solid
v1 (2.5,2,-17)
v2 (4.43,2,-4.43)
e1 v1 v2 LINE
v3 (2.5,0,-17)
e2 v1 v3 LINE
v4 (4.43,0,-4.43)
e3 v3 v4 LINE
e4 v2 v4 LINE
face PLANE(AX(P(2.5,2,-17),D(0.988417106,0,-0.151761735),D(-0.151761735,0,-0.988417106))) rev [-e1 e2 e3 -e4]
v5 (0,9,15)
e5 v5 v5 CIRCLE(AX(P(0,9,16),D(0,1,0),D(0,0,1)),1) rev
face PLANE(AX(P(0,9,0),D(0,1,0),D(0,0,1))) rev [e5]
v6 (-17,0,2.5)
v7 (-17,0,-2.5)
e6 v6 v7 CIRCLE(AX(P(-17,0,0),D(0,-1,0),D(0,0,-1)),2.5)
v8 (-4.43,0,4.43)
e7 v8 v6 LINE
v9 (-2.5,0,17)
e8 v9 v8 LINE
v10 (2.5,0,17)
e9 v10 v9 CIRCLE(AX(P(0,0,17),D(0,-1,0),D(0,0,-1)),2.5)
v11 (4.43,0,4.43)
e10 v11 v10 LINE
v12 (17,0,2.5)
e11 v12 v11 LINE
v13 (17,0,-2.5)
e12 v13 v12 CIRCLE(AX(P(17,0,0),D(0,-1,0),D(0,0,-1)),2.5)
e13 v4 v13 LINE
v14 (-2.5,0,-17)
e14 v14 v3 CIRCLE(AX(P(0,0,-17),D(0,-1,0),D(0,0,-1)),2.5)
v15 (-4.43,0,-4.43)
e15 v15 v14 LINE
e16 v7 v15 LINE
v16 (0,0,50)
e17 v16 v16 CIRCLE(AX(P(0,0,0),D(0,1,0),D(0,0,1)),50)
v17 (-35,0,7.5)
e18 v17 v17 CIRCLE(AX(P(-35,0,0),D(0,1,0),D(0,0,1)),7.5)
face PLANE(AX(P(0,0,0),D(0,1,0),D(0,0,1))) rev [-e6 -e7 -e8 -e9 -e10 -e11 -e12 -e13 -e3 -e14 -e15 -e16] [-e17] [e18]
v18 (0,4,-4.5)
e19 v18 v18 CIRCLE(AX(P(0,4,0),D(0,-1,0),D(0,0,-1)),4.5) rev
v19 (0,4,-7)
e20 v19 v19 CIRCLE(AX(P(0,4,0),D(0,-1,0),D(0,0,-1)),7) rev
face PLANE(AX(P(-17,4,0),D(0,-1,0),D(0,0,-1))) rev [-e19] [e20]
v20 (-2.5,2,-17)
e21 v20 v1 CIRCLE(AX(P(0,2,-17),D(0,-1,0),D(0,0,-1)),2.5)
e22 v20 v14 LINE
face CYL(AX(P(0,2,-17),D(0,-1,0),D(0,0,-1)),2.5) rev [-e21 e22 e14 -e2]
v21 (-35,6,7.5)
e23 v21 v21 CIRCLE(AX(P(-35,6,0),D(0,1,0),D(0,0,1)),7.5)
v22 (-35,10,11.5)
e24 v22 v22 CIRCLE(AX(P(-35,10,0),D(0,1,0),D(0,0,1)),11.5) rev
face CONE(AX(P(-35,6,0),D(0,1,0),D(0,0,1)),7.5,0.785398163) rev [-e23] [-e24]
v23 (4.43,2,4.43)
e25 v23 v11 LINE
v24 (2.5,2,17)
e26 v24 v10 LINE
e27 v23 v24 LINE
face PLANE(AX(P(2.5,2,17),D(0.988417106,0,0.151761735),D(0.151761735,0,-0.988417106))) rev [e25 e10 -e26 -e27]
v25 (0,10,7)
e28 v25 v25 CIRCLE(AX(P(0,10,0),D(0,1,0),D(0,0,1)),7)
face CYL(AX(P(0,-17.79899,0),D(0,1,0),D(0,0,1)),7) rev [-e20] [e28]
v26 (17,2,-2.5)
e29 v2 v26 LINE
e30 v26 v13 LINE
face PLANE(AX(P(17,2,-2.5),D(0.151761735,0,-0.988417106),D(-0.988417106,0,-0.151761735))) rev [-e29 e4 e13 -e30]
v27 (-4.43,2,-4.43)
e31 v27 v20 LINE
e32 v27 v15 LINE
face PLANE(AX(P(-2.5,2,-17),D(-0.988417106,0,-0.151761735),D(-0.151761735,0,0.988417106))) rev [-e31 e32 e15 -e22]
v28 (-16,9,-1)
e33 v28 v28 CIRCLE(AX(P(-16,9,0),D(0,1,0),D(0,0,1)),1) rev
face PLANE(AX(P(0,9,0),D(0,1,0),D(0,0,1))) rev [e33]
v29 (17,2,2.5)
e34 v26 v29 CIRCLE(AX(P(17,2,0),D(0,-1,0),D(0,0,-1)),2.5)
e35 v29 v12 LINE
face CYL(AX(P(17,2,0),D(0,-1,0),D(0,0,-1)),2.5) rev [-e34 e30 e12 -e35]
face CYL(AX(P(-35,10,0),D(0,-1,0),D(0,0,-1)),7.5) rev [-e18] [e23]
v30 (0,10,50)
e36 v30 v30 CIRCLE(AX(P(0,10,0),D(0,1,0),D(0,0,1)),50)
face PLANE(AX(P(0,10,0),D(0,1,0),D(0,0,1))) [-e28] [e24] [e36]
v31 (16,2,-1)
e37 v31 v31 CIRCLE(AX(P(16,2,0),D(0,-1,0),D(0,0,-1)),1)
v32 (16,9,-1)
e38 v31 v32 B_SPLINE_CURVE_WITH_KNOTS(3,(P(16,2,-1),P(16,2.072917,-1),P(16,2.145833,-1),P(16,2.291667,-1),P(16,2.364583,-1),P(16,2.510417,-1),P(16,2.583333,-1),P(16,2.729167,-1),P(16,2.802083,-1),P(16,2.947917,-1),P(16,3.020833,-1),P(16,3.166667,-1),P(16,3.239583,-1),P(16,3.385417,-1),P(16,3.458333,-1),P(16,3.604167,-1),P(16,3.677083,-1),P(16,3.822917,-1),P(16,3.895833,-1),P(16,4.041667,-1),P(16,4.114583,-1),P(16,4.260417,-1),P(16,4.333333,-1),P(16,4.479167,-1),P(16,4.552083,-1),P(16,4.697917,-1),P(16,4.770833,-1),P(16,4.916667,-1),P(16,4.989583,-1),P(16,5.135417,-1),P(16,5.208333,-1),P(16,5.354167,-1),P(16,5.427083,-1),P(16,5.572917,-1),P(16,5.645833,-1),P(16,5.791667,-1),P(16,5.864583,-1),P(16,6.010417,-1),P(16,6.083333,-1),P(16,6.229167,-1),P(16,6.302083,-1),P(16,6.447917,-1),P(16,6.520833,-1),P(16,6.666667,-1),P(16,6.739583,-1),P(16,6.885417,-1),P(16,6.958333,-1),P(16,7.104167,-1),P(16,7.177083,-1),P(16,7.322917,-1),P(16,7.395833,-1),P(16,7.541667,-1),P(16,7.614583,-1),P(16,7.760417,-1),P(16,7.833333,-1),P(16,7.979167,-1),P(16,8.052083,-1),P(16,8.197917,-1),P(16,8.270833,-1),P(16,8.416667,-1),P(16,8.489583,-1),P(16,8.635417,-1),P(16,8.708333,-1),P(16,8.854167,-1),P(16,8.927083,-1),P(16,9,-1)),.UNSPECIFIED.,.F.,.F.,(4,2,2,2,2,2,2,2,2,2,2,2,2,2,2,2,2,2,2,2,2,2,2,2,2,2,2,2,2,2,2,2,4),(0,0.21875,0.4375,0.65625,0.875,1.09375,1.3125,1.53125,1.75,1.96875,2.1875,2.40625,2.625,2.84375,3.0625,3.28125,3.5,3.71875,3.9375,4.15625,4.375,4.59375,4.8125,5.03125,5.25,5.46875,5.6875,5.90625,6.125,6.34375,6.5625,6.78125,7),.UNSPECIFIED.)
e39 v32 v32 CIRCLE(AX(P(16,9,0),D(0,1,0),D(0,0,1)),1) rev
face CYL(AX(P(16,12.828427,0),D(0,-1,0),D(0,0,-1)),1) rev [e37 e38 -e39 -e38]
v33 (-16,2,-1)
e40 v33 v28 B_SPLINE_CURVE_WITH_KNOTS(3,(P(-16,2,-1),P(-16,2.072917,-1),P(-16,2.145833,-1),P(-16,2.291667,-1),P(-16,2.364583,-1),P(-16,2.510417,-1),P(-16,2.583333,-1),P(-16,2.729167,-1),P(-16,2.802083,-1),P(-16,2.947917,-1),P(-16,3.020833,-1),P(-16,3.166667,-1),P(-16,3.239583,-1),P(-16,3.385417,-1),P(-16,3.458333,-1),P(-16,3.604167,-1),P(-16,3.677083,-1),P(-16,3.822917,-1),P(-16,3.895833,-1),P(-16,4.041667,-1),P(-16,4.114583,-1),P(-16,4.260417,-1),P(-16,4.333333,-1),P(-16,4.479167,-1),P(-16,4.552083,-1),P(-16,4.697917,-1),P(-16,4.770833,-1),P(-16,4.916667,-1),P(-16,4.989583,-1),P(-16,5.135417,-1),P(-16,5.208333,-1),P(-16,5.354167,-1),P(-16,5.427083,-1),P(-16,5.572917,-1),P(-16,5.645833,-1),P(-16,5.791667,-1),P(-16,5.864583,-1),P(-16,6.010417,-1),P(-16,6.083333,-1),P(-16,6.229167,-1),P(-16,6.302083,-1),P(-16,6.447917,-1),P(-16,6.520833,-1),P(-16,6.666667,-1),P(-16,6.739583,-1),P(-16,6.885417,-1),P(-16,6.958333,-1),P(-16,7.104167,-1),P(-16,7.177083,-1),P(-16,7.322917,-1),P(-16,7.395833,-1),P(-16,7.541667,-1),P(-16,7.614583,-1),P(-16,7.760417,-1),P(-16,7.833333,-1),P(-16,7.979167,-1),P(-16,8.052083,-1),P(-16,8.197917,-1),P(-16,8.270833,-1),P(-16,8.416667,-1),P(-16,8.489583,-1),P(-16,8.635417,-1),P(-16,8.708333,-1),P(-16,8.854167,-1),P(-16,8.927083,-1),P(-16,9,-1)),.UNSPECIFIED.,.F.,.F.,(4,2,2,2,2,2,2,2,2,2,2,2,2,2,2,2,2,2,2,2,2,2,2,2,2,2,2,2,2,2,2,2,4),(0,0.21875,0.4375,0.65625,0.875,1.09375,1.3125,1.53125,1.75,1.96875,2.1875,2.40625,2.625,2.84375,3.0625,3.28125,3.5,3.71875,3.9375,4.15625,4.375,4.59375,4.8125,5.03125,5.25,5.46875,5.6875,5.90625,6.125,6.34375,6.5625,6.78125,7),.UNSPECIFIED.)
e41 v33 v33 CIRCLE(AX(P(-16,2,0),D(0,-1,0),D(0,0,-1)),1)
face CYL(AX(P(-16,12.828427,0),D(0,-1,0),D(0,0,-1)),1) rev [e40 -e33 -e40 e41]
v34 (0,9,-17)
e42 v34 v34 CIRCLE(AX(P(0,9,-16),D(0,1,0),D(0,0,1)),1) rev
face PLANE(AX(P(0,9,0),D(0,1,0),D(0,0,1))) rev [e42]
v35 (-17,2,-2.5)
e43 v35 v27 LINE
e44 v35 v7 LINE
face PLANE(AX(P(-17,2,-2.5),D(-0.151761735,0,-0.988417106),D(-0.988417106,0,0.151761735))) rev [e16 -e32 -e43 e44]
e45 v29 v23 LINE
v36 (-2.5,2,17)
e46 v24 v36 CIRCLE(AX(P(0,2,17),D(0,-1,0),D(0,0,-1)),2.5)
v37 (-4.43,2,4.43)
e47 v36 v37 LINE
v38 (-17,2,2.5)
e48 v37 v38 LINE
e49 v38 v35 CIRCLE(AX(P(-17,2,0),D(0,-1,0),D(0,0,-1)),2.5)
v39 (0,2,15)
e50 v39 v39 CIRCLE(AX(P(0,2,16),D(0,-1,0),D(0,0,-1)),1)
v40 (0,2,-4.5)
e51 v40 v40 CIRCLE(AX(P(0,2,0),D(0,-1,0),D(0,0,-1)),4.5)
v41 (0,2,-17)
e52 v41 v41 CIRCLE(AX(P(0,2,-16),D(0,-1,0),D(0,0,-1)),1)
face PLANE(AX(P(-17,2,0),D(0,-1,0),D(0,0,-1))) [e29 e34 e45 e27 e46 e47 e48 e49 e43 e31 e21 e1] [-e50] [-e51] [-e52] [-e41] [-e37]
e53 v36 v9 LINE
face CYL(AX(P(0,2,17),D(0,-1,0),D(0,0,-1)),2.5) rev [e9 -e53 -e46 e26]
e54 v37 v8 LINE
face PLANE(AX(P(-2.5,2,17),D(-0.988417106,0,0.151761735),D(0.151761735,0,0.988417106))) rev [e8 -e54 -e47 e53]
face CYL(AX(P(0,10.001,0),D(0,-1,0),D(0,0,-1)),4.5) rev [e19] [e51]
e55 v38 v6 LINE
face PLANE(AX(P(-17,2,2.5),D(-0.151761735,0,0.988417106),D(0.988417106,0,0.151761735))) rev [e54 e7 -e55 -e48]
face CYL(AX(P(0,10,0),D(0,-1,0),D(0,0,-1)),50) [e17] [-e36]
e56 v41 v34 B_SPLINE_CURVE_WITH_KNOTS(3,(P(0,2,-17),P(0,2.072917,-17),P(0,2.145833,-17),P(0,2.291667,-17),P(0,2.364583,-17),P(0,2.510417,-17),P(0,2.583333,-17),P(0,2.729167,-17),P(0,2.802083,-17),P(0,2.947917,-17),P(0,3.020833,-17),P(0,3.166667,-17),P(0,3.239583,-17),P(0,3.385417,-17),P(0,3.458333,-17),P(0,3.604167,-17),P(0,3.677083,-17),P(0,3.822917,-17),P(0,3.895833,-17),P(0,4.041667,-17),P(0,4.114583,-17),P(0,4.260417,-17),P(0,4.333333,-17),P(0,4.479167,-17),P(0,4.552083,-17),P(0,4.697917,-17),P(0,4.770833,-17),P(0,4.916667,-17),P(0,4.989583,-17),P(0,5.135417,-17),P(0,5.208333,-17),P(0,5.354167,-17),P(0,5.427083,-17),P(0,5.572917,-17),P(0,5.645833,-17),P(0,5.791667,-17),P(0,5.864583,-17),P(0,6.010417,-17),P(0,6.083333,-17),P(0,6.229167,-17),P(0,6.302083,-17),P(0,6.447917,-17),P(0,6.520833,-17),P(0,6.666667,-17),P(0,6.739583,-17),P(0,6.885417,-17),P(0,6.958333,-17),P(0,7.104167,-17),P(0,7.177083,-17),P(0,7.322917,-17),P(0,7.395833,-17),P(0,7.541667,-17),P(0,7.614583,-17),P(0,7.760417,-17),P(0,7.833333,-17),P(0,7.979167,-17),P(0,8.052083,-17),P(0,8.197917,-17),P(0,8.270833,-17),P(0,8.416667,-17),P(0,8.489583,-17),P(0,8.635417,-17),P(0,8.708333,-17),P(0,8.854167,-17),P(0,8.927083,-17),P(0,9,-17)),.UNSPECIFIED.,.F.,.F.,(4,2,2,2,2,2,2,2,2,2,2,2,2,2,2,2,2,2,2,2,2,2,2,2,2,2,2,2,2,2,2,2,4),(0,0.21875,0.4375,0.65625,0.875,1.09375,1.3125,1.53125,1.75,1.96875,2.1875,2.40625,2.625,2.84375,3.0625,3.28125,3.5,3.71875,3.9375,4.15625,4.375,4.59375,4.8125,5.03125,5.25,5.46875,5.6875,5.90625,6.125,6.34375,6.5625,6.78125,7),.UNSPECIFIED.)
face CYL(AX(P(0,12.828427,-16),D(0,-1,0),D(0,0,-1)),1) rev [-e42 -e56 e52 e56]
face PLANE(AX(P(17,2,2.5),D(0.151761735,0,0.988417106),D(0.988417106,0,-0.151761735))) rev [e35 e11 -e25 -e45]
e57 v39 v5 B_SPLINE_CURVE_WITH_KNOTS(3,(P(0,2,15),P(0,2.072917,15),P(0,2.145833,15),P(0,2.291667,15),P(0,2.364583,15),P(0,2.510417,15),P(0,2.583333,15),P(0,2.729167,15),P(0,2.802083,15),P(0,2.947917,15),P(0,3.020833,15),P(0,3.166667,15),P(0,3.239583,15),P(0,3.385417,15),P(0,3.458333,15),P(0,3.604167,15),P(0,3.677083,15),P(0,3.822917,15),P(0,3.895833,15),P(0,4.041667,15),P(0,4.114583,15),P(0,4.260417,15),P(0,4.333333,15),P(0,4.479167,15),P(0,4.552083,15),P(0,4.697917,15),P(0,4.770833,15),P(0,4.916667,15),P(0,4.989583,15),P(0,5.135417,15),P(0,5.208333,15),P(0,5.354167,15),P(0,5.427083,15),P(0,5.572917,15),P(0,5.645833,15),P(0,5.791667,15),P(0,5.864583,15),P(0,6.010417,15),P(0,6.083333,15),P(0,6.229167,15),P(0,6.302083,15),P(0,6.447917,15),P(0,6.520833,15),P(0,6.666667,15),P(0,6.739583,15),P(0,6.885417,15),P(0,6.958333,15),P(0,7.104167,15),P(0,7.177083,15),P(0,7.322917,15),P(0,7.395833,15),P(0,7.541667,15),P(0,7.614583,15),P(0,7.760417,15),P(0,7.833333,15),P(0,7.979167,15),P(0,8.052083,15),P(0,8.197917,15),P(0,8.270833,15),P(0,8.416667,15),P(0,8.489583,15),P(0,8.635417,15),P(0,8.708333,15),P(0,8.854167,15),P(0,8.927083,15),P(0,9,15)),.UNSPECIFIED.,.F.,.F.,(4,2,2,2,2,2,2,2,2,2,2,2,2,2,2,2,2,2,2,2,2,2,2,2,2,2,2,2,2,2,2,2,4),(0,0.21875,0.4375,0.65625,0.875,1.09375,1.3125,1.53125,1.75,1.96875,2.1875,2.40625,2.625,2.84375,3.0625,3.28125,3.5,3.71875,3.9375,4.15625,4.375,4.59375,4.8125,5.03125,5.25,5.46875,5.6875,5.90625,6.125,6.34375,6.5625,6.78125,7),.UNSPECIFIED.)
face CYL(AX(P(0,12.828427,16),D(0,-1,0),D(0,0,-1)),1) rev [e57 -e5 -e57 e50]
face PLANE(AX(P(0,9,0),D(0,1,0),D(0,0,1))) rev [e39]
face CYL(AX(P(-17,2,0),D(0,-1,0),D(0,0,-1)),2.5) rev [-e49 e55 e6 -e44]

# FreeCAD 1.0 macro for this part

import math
import FreeCAD as App
import Part
import Sketcher
Q = App.Units.Quantity


def edges_at(feature, points):
    """Names of the edges that pass closest to the given points."""
    edges = feature.Shape.Edges
    near = lambda p: min(range(len(edges)), key=lambda i: edges[i].distToShape(Part.Vertex(*p))[0])
    return sorted({f"Edge{near(p) + 1}" for p in points})

doc = App.newDocument("Part")
body = doc.addObject("PartDesign::Body", "Body")

# Sketch on XZ plane
sketch1 = body.newObject("Sketcher::SketchObject", "Sketch")
sketch1.AttachmentSupport = (doc.getObject("XZ_Plane"), [""])
sketch1.MapMode = "FlatFace"
sketch1.addGeometry(Part.Circle(App.Vector(0, 0, 0), App.Vector(0, 0, 1), 50), False)
sketch1.addGeometry(Part.Circle(App.Vector(-35, 0, 0), App.Vector(0, 0, 1), 8), False)
sketch1.addConstraint(Sketcher.Constraint("Coincident", 0, 3, -1, 1))
sketch1.addConstraint(Sketcher.Constraint("PointOnObject", 1, 3, -1))
sketch1.addConstraint(Sketcher.Constraint("Diameter", 0, Q("100 mm")))
sketch1.addConstraint(Sketcher.Constraint("Diameter", 1, Q("15 mm")))
sketch1.addConstraint(Sketcher.Constraint("DistanceX", 1, 3, -1, 1, Q("35 mm")))
pad1 = body.newObject("PartDesign::Pad", "Pad")
pad1.Profile = sketch1
pad1.Length = 10
pad1.Reversed = True
doc.recompute()

chamfer = body.newObject("PartDesign::Chamfer", "Chamfer")
chamfer.Base = (pad1, edges_at(pad1, [(-35, 10, -7.5)]))
chamfer.Size = 4

# Sketch on XZ plane
sketch2 = body.newObject("Sketcher::SketchObject", "Sketch001")
sketch2.AttachmentSupport = (doc.getObject("XZ_Plane"), [""])
sketch2.MapMode = "FlatFace"
sketch2.addGeometry(Part.LineSegment(App.Vector(-17, -2.5, 0), App.Vector(-4.4, -4.4, 0)), False)
sketch2.addGeometry(Part.LineSegment(App.Vector(-4.4, -4.4, 0), App.Vector(-2.5, -17, 0)), False)
sketch2.addGeometry(Part.ArcOfCircle(Part.Circle(App.Vector(0, -17, 0), App.Vector(0, 0, 1), 2.5), math.radians(180), math.radians(360)), False)
sketch2.addGeometry(Part.LineSegment(App.Vector(2.5, -17, 0), App.Vector(4.4, -4.4, 0)), False)
sketch2.addGeometry(Part.LineSegment(App.Vector(4.4, -4.4, 0), App.Vector(17, -2.5, 0)), False)
sketch2.addGeometry(Part.ArcOfCircle(Part.Circle(App.Vector(17, 0, 0), App.Vector(0, 0, 1), 2.5), math.radians(-90), math.radians(90)), False)
sketch2.addGeometry(Part.LineSegment(App.Vector(17, 2.5, 0), App.Vector(4.4, 4.4, 0)), False)
sketch2.addGeometry(Part.LineSegment(App.Vector(4.4, 4.4, 0), App.Vector(2.5, 17, 0)), False)
sketch2.addGeometry(Part.ArcOfCircle(Part.Circle(App.Vector(0, 17, 0), App.Vector(0, 0, 1), 2.5), math.radians(0), math.radians(180)), False)
sketch2.addGeometry(Part.LineSegment(App.Vector(-2.5, 17, 0), App.Vector(-4.4, 4.4, 0)), False)
sketch2.addGeometry(Part.LineSegment(App.Vector(-4.4, 4.4, 0), App.Vector(-17, 2.5, 0)), False)
sketch2.addGeometry(Part.ArcOfCircle(Part.Circle(App.Vector(-17, 0, 0), App.Vector(0, 0, 1), 2.5), math.radians(90), math.radians(270)), False)
sketch2.addConstraint(Sketcher.Constraint("Coincident", 0, 2, 1, 1))
sketch2.addConstraint(Sketcher.Constraint("Coincident", 1, 2, 2, 1))
sketch2.addConstraint(Sketcher.Constraint("Coincident", 2, 2, 3, 1))
sketch2.addConstraint(Sketcher.Constraint("Coincident", 3, 2, 4, 1))
sketch2.addConstraint(Sketcher.Constraint("Coincident", 4, 2, 5, 1))
sketch2.addConstraint(Sketcher.Constraint("Coincident", 5, 2, 6, 1))
sketch2.addConstraint(Sketcher.Constraint("Coincident", 6, 2, 7, 1))
sketch2.addConstraint(Sketcher.Constraint("Coincident", 7, 2, 8, 1))
sketch2.addConstraint(Sketcher.Constraint("Coincident", 8, 2, 9, 1))
sketch2.addConstraint(Sketcher.Constraint("Coincident", 9, 2, 10, 1))
sketch2.addConstraint(Sketcher.Constraint("Coincident", 10, 2, 11, 1))
sketch2.addConstraint(Sketcher.Constraint("Coincident", 11, 2, 0, 1))
sketch2.addConstraint(Sketcher.Constraint("Equal", 2, 5))
sketch2.addConstraint(Sketcher.Constraint("Equal", 5, 8))
sketch2.addConstraint(Sketcher.Constraint("Equal", 8, 11))
sketch2.addConstraint(Sketcher.Constraint("Symmetric", 2, 3, 8, 3, -1, 1))
sketch2.addConstraint(Sketcher.Constraint("Symmetric", 5, 3, 11, 3, -1, 1))
sketch2.addConstraint(Sketcher.Constraint("Symmetric", 0, 2, 6, 2, -1, 1))
sketch2.addConstraint(Sketcher.Constraint("Symmetric", 3, 2, 9, 2, -1, 1))
sketch2.addConstraint(Sketcher.Constraint("Symmetric", 1, 2, 2, 2, -2))
sketch2.addConstraint(Sketcher.Constraint("Symmetric", 0, 2, 3, 2, -2))
sketch2.addConstraint(Sketcher.Constraint("Symmetric", 5, 2, 10, 2, -2))
sketch2.addConstraint(Sketcher.Constraint("Perpendicular", 0, 3))
sketch2.addConstraint(Sketcher.Constraint("Perpendicular", 1, 4))
sketch2.addConstraint(Sketcher.Constraint("Perpendicular", 3, 6))
sketch2.addConstraint(Sketcher.Constraint("Perpendicular", 4, 7))
sketch2.addConstraint(Sketcher.Constraint("Perpendicular", 6, 9))
sketch2.addConstraint(Sketcher.Constraint("Horizontal", 2, 3, 1, 2))
sketch2.addConstraint(Sketcher.Constraint("Vertical", 5, 3, 4, 2))
sketch2.addConstraint(Sketcher.Constraint("Equal", 0, 1))
sketch2.addConstraint(Sketcher.Constraint("Radius", 2, Q("2.5 mm")))
sketch2.addConstraint(Sketcher.Constraint("DistanceY", 2, 3, -1, 1, Q("17 mm")))
sketch2.addConstraint(Sketcher.Constraint("DistanceX", 0, 2, -1, 1, Q("4.43 mm")))
pocket1 = body.newObject("PartDesign::Pocket", "Pocket")
pocket1.Profile = sketch2
pocket1.Length = 2

# Sketch on XZ plane
sketch3 = body.newObject("Sketcher::SketchObject", "Sketch002")
sketch3.AttachmentSupport = (doc.getObject("XZ_Plane"), [""])
sketch3.MapMode = "FlatFace"
sketch3.AttachmentOffset = App.Placement(App.Vector(0, 0, -2), App.Rotation())
sketch3.addGeometry(Part.Circle(App.Vector(0, 0, 0), App.Vector(0, 0, 1), 4.5), False)
sketch3.addConstraint(Sketcher.Constraint("Coincident", 0, 3, -1, 1))
sketch3.addConstraint(Sketcher.Constraint("Diameter", 0, Q("9 mm")))
pocket2 = body.newObject("PartDesign::Pocket", "Pocket001")
pocket2.Profile = sketch3
pocket2.Type = "UpToFirst"

# Sketch on XZ plane
sketch4 = body.newObject("Sketcher::SketchObject", "Sketch003")
sketch4.AttachmentSupport = (doc.getObject("XZ_Plane"), [""])
sketch4.MapMode = "FlatFace"
sketch4.AttachmentOffset = App.Placement(App.Vector(0, 0, -2), App.Rotation())
sketch4.addGeometry(Part.Circle(App.Vector(-16, 0, 0), App.Vector(0, 0, 1), 1), False)
sketch4.addGeometry(Part.Circle(App.Vector(0, 16, 0), App.Vector(0, 0, 1), 1), False)
sketch4.addGeometry(Part.Circle(App.Vector(16, 0, 0), App.Vector(0, 0, 1), 1), False)
sketch4.addGeometry(Part.Circle(App.Vector(0, -16, 0), App.Vector(0, 0, 1), 1), False)
sketch4.addConstraint(Sketcher.Constraint("Equal", 0, 1))
sketch4.addConstraint(Sketcher.Constraint("Equal", 1, 2))
sketch4.addConstraint(Sketcher.Constraint("Equal", 2, 3))
sketch4.addConstraint(Sketcher.Constraint("Symmetric", 0, 3, 2, 3, -1, 1))
sketch4.addConstraint(Sketcher.Constraint("Symmetric", 1, 3, 3, 3, -1, 1))
sketch4.addConstraint(Sketcher.Constraint("PointOnObject", 0, 3, -1))
sketch4.addConstraint(Sketcher.Constraint("PointOnObject", 1, 3, -2))
sketch4.addConstraint(Sketcher.Constraint("Diameter", 0, Q("2 mm")))
sketch4.addConstraint(Sketcher.Constraint("DistanceX", 0, 3, -1, 1, Q("16 mm")))
sketch4.addConstraint(Sketcher.Constraint("DistanceY", -1, 1, 1, 3, Q("16 mm")))
pocket3 = body.newObject("PartDesign::Pocket", "Pocket002")
pocket3.Profile = sketch4
pocket3.Length = 7

# Sketch on XZ plane
sketch5 = body.newObject("Sketcher::SketchObject", "Sketch004")
sketch5.AttachmentSupport = (doc.getObject("XZ_Plane"), [""])
sketch5.MapMode = "FlatFace"
sketch5.AttachmentOffset = App.Placement(App.Vector(0, 0, -10), App.Rotation())
sketch5.addGeometry(Part.Circle(App.Vector(0, 0, 0), App.Vector(0, 0, 1), 7), False)
sketch5.addConstraint(Sketcher.Constraint("Coincident", 0, 3, -1, 1))
sketch5.addConstraint(Sketcher.Constraint("Diameter", 0, Q("14 mm")))
pocket4 = body.newObject("PartDesign::Pocket", "Pocket003")
pocket4.Profile = sketch5
pocket4.Length = 6
pocket4.Reversed = True

doc.recompute()
